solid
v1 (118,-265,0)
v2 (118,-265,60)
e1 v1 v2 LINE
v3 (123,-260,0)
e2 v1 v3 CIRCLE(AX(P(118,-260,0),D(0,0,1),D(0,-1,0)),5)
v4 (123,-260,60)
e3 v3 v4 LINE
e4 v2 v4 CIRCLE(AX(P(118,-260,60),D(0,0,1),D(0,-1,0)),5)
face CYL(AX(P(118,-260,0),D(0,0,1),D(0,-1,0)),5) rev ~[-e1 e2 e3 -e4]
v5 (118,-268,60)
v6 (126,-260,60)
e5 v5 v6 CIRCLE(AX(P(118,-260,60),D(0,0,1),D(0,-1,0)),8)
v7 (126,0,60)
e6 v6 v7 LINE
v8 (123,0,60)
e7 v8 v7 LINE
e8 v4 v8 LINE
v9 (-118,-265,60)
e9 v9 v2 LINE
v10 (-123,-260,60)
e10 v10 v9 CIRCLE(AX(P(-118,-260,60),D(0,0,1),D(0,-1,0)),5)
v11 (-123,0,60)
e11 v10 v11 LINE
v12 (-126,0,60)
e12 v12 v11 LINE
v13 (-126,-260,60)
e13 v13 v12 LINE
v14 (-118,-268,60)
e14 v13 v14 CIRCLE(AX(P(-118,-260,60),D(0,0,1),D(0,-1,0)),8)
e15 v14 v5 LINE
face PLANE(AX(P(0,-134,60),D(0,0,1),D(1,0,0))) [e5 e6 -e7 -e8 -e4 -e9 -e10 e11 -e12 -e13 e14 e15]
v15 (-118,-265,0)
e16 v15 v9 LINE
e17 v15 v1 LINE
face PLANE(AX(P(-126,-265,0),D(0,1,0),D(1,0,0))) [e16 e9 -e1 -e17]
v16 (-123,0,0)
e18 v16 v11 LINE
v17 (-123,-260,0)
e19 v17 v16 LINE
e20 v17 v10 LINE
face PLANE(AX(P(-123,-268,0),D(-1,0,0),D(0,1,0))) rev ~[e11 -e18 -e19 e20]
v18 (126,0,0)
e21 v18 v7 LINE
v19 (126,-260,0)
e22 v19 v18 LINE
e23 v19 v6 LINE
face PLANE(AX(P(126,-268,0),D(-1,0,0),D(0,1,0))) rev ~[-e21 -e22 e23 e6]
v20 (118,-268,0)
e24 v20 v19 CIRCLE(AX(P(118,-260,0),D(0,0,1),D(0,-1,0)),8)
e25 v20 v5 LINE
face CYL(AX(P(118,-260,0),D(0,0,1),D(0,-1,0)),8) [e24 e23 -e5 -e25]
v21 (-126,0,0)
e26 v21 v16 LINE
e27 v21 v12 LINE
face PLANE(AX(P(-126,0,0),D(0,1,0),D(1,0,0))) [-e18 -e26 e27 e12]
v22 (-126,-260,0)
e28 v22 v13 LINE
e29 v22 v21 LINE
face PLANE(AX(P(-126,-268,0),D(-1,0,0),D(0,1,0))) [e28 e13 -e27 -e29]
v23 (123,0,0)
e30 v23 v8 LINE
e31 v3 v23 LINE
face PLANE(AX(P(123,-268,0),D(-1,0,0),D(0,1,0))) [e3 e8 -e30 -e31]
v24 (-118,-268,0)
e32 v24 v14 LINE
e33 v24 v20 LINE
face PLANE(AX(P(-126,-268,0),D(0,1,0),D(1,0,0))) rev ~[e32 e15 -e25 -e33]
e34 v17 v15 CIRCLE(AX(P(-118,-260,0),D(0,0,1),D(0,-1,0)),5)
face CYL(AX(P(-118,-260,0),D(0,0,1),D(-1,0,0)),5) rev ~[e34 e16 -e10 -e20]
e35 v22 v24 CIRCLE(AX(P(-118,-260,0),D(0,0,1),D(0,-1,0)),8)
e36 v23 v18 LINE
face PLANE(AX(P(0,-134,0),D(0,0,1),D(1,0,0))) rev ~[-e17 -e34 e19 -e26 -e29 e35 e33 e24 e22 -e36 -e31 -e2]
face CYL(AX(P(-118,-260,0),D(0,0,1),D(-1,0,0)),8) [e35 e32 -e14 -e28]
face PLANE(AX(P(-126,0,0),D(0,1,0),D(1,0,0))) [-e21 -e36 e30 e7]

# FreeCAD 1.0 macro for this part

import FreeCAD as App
import Part
import Sketcher
from FreeCAD import Vector
Q = App.Units.Quantity


def edges_at(feature, points):
    """Names of the edges that pass closest to the given points."""
    edges = feature.Shape.Edges
    near = lambda p: min(range(len(edges)), key=lambda i: edges[i].distToShape(Part.Vertex(*p))[0])
    return sorted({f"Edge{near(p) + 1}" for p in points})


def faces_at(feature, points):
    """Names of the faces that lie closest to the given points."""
    faces = feature.Shape.Faces
    near = lambda p: min(range(len(faces)), key=lambda i: faces[i].distToShape(Part.Vertex(*p))[0])
    return sorted({f"Face{near(p) + 1}" for p in points})

doc = App.newDocument("Part")
body = doc.addObject("PartDesign::Body", "Body")

# Sketch on XY plane
sketch1 = body.newObject("Sketcher::SketchObject", "Sketch")
sketch1.AttachmentSupport = (doc.getObject("XY_Plane"), [""])
sketch1.MapMode = "FlatFace"
sketch1.addGeometry(Part.LineSegment(Vector(-126, 0, 0), Vector(-126, -268, 0)), False)
sketch1.addGeometry(Part.LineSegment(Vector(-126, -268, 0), Vector(126, -268, 0)), False)
sketch1.addGeometry(Part.LineSegment(Vector(126, -268, 0), Vector(126, 0, 0)), False)
sketch1.addGeometry(Part.LineSegment(Vector(126, 0, 0), Vector(-126, 0, 0)), False)
sketch1.addConstraint(Sketcher.Constraint("Coincident", 0, 2, 1, 1))
sketch1.addConstraint(Sketcher.Constraint("Coincident", 1, 2, 2, 1))
sketch1.addConstraint(Sketcher.Constraint("Coincident", 2, 2, 3, 1))
sketch1.addConstraint(Sketcher.Constraint("Coincident", 3, 2, 0, 1))
sketch1.addConstraint(Sketcher.Constraint("Vertical", 0))
sketch1.addConstraint(Sketcher.Constraint("Horizontal", 1))
sketch1.addConstraint(Sketcher.Constraint("Vertical", 2))
sketch1.addConstraint(Sketcher.Constraint("Horizontal", 3))
sketch1.addConstraint(Sketcher.Constraint("Symmetric", 2, 2, 3, 2, -1, 1))
sketch1.addConstraint(Sketcher.Constraint("DistanceX", 1, 1, 1, 2, Q("252 mm")))
sketch1.addConstraint(Sketcher.Constraint("DistanceY", 0, 2, 0, 1, Q("268 mm")))
pad1 = body.newObject("PartDesign::Pad", "Pad")
pad1.Profile = sketch1
pad1.Length = 60
doc.recompute()

fillet = body.newObject("PartDesign::Fillet", "Fillet")
fillet.Base = (pad1, edges_at(pad1, [(126, -268, 30), (-126, -268, 30)]))
fillet.Radius = 8
doc.recompute()

thickness = body.newObject("PartDesign::Thickness", "Thickness")
thickness.Base = (fillet, faces_at(fillet, [(0, -134, 60), (0, 0, 30), (0, -134, 0)]))
thickness.Value = 3
thickness.Reversed = True
thickness.Join = "Arc"

doc.recompute()
